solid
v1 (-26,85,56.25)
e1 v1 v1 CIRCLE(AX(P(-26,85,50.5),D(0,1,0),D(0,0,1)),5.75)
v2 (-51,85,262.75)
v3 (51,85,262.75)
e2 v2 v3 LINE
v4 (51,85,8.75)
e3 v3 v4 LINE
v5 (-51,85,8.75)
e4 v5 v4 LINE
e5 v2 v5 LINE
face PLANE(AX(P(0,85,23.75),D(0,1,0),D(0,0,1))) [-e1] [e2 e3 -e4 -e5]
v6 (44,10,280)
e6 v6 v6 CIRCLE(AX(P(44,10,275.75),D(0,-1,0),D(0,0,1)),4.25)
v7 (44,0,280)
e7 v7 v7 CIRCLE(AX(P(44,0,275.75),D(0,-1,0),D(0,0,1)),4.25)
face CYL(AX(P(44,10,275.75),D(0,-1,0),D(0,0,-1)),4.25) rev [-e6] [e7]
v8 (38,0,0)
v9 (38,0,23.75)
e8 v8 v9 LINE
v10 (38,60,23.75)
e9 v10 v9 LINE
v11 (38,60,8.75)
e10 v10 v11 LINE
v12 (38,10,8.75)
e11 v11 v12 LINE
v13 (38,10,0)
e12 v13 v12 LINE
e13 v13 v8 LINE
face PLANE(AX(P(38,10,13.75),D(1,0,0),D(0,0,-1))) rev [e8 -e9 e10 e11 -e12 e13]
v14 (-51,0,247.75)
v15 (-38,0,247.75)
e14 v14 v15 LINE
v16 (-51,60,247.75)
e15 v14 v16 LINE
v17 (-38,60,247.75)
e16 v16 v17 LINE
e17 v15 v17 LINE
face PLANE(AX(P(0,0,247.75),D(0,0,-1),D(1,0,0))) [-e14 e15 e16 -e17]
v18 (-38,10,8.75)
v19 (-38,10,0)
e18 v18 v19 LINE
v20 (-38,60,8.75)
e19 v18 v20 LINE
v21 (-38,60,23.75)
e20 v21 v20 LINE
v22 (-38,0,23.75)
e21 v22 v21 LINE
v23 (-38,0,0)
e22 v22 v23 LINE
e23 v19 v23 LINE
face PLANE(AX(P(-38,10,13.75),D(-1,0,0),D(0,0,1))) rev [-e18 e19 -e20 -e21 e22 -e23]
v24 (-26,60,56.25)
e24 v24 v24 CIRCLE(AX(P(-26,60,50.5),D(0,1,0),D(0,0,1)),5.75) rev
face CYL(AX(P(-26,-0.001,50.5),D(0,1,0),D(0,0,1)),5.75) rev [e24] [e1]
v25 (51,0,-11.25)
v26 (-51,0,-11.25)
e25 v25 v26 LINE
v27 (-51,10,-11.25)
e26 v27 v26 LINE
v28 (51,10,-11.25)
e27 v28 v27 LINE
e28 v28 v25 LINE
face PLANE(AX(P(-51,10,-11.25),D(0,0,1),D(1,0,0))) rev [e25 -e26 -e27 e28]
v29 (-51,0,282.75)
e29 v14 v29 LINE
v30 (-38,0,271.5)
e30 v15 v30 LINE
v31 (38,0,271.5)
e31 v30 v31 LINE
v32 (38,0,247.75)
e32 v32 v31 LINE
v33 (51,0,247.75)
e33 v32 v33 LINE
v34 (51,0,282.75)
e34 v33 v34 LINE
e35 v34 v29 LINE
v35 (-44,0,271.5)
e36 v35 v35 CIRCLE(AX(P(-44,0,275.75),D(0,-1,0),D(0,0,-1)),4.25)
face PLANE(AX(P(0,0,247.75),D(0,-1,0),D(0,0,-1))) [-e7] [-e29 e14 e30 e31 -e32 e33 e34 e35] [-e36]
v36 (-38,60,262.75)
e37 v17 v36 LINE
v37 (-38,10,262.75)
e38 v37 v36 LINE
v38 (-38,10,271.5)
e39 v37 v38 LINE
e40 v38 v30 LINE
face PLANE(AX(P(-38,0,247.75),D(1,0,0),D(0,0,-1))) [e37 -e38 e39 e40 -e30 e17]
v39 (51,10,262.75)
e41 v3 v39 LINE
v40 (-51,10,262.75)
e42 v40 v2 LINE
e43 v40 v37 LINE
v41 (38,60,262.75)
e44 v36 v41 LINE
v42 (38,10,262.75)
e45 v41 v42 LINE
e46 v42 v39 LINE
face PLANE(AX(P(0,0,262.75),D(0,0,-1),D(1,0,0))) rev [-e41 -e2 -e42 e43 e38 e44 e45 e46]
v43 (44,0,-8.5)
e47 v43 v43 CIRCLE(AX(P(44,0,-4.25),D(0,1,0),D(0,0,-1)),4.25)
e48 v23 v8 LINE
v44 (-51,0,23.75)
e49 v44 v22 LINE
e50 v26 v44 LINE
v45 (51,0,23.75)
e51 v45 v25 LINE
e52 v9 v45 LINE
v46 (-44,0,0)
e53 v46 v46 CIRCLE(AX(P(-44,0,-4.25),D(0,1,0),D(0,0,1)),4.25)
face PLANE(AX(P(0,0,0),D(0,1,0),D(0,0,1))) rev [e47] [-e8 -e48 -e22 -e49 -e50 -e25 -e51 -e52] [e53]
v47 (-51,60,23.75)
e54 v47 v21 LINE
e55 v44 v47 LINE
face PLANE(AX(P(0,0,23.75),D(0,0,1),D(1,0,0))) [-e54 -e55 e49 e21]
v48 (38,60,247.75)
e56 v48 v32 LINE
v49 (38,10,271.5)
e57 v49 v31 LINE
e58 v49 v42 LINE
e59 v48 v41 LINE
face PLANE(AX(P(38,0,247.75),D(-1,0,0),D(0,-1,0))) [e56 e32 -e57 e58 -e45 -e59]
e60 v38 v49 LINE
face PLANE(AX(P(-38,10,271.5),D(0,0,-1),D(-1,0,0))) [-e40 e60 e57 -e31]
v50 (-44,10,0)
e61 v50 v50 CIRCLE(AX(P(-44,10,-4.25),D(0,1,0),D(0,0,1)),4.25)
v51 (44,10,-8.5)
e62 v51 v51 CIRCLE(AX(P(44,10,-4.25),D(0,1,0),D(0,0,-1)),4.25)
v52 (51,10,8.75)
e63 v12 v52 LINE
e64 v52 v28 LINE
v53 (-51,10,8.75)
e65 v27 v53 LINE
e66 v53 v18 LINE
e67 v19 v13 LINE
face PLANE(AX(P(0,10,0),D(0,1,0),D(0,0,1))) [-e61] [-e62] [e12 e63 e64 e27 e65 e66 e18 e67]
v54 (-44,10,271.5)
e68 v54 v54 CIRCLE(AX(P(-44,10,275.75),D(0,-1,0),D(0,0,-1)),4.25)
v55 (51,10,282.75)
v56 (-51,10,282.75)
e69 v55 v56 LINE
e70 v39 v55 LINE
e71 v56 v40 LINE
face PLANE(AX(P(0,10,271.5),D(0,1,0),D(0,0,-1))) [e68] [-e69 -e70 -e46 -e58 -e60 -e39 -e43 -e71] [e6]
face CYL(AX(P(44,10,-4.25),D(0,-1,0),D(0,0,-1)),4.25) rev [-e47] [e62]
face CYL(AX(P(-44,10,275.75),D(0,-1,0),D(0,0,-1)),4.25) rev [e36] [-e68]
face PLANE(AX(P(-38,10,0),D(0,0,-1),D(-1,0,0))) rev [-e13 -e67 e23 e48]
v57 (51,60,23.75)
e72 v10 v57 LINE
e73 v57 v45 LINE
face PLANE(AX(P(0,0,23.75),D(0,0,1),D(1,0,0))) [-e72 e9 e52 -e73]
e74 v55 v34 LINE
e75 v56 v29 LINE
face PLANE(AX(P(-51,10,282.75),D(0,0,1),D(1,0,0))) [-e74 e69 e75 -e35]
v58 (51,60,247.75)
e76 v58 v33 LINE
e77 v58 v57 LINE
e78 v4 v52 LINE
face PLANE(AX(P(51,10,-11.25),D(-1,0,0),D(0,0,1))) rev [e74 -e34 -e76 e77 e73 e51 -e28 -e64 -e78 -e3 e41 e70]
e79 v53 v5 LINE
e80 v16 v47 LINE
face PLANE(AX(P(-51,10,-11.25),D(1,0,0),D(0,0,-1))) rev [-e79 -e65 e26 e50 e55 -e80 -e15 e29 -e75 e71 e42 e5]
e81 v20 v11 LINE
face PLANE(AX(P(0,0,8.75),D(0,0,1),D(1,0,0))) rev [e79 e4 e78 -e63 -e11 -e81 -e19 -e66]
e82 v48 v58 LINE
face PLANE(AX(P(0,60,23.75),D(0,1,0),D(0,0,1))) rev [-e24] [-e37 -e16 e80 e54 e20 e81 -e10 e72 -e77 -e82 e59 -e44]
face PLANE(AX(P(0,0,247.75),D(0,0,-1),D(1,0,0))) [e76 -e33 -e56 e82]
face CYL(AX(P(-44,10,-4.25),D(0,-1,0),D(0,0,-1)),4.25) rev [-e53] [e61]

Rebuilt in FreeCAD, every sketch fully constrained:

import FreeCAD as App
import Part
import Sketcher
from FreeCAD import Vector


def add_polygon(sketch, points):
    """Adds a closed chain of lines whose ends are joined by coincident constraints."""
    first, n = sketch.GeometryCount, len(points)
    for a, b in zip(points, points[1:] + points[:1]):
        sketch.addGeometry(Part.LineSegment(App.Vector(*a, 0), App.Vector(*b, 0)), False)
    for i in range(n):
        sketch.addConstraint(Sketcher.Constraint("Coincident", first + i, 2, first + (i + 1) % n, 1))

doc = App.newDocument("Part")
body = doc.addObject("PartDesign::Body", "Body")

# Sketch on XZ plane
sketch1 = body.newObject("Sketcher::SketchObject", "Sketch")
sketch1.AttachmentSupport = (doc.getObject("XZ_Plane"), [""])
sketch1.MapMode = "FlatFace"
add_polygon(sketch1, [(51, -11.2), (-51, -11.2), (-51, 13.8), (-38, 13.8), (-38, 0), (38, 0), (38, 13.8), (51, 13.8)])  # lines 0-7
sketch1.addGeometry(Part.Circle(Vector(44, -4.2, 0), Vector(0, 0, 1), 4.2), False)  # 8
sketch1.addGeometry(Part.Circle(Vector(-44, -4.2, 0), Vector(0, 0, 1), 4.2), False)  # 9
sketch1.addConstraint([
    Sketcher.Constraint("Horizontal", 0),
    Sketcher.Constraint("Vertical", 1),
    Sketcher.Constraint("Horizontal", 2),
    Sketcher.Constraint("Vertical", 3),
    Sketcher.Constraint("Horizontal", 4),
    Sketcher.Constraint("Vertical", 5),
    Sketcher.Constraint("Horizontal", 6),
    Sketcher.Constraint("Vertical", 7),
    Sketcher.Constraint("Equal", 8, 9),
    Sketcher.Constraint("Symmetric", 3, 2, 4, 2, -1, 1),
    Sketcher.Constraint("Symmetric", 8, 3, 9, 3, -2),
    Sketcher.Constraint("Symmetric", 1, 2, 6, 2, -2),
    Sketcher.Constraint("Diameter", 8, 8.5),
    Sketcher.Constraint("DistanceX", 0, 2, 0, 1, 102.0),
    Sketcher.Constraint("DistanceX", 2, 1, 2, 2, 13.0),
    Sketcher.Constraint("DistanceY", 1, 1, 1, 2, 25.0),
    Sketcher.Constraint("DistanceX", -1, 1, 8, 3, 44.0),
    Sketcher.Constraint("DistanceY", 0, 2, 9, 3, 7.0),
    Sketcher.Constraint("DistanceY", 3, 2, 3, 1, 13.75),
])
pad1 = body.newObject("PartDesign::Pad", "Pad")
pad1.Profile = sketch1
pad1.Length = 10
pad1.Reversed = True

# Sketch on XY plane
sketch2 = body.newObject("Sketcher::SketchObject", "Sketch001")
sketch2.AttachmentSupport = (doc.getObject("XY_Plane"), [""])
sketch2.MapMode = "FlatFace"
sketch2.AttachmentOffset = App.Placement(Vector(0, 0, 8.75), App.Rotation())
add_polygon(sketch2, [(-51, 85), (-51, 0), (-38, 0), (-38, 60), (38, 60), (38, 0), (51, 0), (51, 85)])  # lines 0-7
sketch2.addConstraint([
    Sketcher.Constraint("Vertical", 0),
    Sketcher.Constraint("Horizontal", 1),
    Sketcher.Constraint("Vertical", 2),
    Sketcher.Constraint("Horizontal", 3),
    Sketcher.Constraint("Vertical", 4),
    Sketcher.Constraint("Horizontal", 5),
    Sketcher.Constraint("Vertical", 6),
    Sketcher.Constraint("Horizontal", 7),
    Sketcher.Constraint("Symmetric", 1, 2, 4, 2, -1, 1),
    Sketcher.Constraint("Symmetric", 0, 2, 5, 2, -2),
    Sketcher.Constraint("DistanceX", 1, 1, 1, 2, 13.0),
    Sketcher.Constraint("DistanceX", 3, 1, 3, 2, 76.0),
    Sketcher.Constraint("DistanceY", 0, 2, 0, 1, 85.0),
    Sketcher.Constraint("DistanceY", 2, 1, 2, 2, 60.0),
])
pad2 = body.newObject("PartDesign::Pad", "Pad001")
pad2.Profile = sketch2
pad2.Length = 15

# Sketch on XY plane
sketch3 = body.newObject("Sketcher::SketchObject", "Sketch002")
sketch3.AttachmentSupport = (doc.getObject("XY_Plane"), [""])
sketch3.MapMode = "FlatFace"
sketch3.AttachmentOffset = App.Placement(Vector(0, 0, 23.75), App.Rotation())
add_polygon(sketch3, [(-51, 85), (-51, 60), (51, 60), (51, 85)])  # lines 0-3
sketch3.addConstraint([
    Sketcher.Constraint("Vertical", 0),
    Sketcher.Constraint("Horizontal", 1),
    Sketcher.Constraint("Vertical", 2),
    Sketcher.Constraint("Horizontal", 3),
    Sketcher.Constraint("DistanceX", 1, 1, 1, 2, 102.0),
    Sketcher.Constraint("DistanceY", 0, 2, 0, 1, 25.0),
    Sketcher.Constraint("DistanceX", 0, 2, -1, 1, 51.0),
    Sketcher.Constraint("DistanceY", -1, 1, 0, 2, 60.0),
])
pad3 = body.newObject("PartDesign::Pad", "Pad002")
pad3.Profile = sketch3
pad3.Length = 224

# Sketch on XZ plane
sketch4 = body.newObject("Sketcher::SketchObject", "Sketch003")
sketch4.AttachmentSupport = (doc.getObject("XZ_Plane"), [""])
sketch4.MapMode = "FlatFace"
sketch4.AttachmentOffset = App.Placement(Vector(0, 0, -85), App.Rotation())
sketch4.addGeometry(Part.Circle(Vector(-26, 50, 0), Vector(0, 0, 1), 6), False)
sketch4.addConstraint([
    Sketcher.Constraint("Diameter", 0, 11.5),
    Sketcher.Constraint("DistanceX", 0, 3, -1, 1, 26.0),
    Sketcher.Constraint("DistanceY", -1, 1, 0, 3, 50.5),
])
pocket1 = body.newObject("PartDesign::Pocket", "Pocket")
pocket1.Profile = sketch4
pocket1.Type = "UpToFirst"
pocket1.Reversed = True
doc.recompute()

datumplane = body.newObject("PartDesign::Plane", "DatumPlane")
datumplane.AttachmentSupport = (doc.getObject("XY_Plane"), [""])
datumplane.MapMode = "FlatFace"
datumplane.AttachmentOffset = App.Placement(Vector(0, 0, 135.75), App.Rotation())
mirrored = body.newObject("PartDesign::Mirrored", "Mirrored")
mirrored.Originals = [pad2]
mirrored.MirrorPlane = (datumplane, [""])
body.Tip = mirrored
doc.recompute()

datumplane2 = body.newObject("PartDesign::Plane", "DatumPlane001")
datumplane2.AttachmentSupport = (doc.getObject("XY_Plane"), [""])
datumplane2.MapMode = "FlatFace"
datumplane2.AttachmentOffset = App.Placement(Vector(0, 0, 135.75), App.Rotation())
mirrored2 = body.newObject("PartDesign::Mirrored", "Mirrored001")
mirrored2.Originals = [pad1]
mirrored2.MirrorPlane = (datumplane2, [""])
body.Tip = mirrored2

doc.recompute()
